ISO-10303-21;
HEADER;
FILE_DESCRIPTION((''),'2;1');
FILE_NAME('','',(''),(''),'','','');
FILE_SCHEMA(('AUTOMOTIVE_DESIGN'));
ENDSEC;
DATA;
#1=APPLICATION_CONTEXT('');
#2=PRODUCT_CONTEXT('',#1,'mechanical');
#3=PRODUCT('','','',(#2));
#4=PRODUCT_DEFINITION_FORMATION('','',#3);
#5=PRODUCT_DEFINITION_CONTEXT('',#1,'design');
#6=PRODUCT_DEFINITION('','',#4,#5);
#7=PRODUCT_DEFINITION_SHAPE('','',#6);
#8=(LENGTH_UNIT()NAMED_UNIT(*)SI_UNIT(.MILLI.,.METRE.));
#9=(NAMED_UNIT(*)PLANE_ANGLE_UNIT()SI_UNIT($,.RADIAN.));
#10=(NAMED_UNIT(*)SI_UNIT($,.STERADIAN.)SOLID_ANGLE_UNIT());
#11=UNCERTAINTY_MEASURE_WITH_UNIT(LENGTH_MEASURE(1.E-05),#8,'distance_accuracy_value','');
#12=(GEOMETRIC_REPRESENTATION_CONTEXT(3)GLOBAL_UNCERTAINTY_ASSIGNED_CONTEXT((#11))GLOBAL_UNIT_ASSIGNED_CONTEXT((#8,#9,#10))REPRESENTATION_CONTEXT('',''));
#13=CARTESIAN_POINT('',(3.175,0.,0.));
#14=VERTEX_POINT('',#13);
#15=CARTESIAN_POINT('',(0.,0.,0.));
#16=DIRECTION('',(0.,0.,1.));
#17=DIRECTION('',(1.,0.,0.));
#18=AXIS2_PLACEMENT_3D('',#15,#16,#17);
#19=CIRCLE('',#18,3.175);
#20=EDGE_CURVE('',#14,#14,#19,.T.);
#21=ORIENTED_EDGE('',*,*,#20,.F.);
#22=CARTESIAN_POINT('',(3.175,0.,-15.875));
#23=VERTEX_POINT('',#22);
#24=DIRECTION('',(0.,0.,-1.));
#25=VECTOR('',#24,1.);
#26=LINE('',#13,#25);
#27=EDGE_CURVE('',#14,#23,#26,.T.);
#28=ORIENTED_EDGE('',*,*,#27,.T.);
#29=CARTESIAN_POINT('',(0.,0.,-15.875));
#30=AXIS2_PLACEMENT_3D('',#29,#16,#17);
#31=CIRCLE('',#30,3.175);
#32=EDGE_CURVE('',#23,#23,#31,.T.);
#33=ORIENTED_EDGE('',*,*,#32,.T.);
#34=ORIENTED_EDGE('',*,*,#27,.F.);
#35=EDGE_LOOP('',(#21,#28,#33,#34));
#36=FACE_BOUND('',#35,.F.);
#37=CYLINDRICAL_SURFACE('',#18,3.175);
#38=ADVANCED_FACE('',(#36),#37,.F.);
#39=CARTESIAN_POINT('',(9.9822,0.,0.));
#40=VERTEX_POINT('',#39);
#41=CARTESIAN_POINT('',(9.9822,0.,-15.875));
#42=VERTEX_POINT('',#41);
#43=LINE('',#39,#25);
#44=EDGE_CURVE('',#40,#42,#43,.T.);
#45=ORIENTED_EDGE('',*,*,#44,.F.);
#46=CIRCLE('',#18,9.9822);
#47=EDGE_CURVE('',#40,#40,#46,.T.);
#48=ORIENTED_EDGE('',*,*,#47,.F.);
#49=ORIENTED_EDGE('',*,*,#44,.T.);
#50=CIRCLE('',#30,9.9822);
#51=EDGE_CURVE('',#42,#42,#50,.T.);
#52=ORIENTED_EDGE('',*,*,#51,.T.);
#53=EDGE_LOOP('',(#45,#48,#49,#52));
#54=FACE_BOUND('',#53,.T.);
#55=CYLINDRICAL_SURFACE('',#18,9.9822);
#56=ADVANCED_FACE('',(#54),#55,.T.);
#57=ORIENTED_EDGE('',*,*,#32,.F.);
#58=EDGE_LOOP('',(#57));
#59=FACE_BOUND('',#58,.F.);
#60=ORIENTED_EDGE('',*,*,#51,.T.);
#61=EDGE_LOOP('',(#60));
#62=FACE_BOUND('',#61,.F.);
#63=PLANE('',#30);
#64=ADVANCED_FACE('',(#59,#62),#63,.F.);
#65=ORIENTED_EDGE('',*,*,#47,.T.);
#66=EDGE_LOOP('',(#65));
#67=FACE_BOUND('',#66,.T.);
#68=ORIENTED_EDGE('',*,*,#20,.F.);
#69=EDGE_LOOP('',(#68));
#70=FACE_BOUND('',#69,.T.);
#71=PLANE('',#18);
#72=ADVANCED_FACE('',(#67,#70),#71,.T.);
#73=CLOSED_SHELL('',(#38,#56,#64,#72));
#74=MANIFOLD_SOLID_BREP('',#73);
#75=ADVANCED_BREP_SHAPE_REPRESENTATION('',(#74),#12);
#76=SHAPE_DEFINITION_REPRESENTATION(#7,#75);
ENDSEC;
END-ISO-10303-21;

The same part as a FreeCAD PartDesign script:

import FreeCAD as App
import Part
import Sketcher
from FreeCAD import Vector
Q = App.Units.Quantity

doc = App.newDocument("Part")
params = doc.addObject("Spreadsheet::Sheet", "Params")
for row, (alias, value) in enumerate([
    ("sketch1_diameter", "0.786 in"),
    ("pad1_length", "0.625 in"),
    ("sketch2_diameter", "0.25 in"),
], start=1):
    params.set(f"A{row}", alias)
    params.set(f"B{row}", "=" + value)
    params.setAlias(f"B{row}", alias)

body = doc.addObject("PartDesign::Body", "Body")

sketch1 = body.newObject("Sketcher::SketchObject", "Sketch")
sketch1.AttachmentSupport = (doc.getObject("XY_Plane"), [""])
sketch1.MapMode = "FlatFace"
sketch1.addGeometry(Part.Circle(Vector(0, 0, 0), Vector(0, 0, 1), 9.9822), False)
sketch1.addConstraint([
    Sketcher.Constraint("Coincident", 0, 3, -1, 1),
    Sketcher.Constraint("Diameter", 0, Q("0.786 in")),
])
sketch1.setExpression("Constraints[1]", "Params.sketch1_diameter")
pad1 = body.newObject("PartDesign::Pad", "Pad")
pad1.Profile = sketch1
pad1.setExpression("Length", "Params.pad1_length")
pad1.Reversed = True

sketch2 = body.newObject("Sketcher::SketchObject", "Sketch001")
sketch2.AttachmentSupport = (doc.getObject("XY_Plane"), [""])
sketch2.MapMode = "FlatFace"
sketch2.addGeometry(Part.Circle(Vector(0, 0, 0), Vector(0, 0, 1), 3.175), False)
sketch2.addConstraint([
    Sketcher.Constraint("Coincident", 0, 3, -1, 1),
    Sketcher.Constraint("Diameter", 0, Q("0.25 in")),
])
sketch2.setExpression("Constraints[1]", "Params.sketch2_diameter")
pocket1 = body.newObject("PartDesign::Pocket", "Pocket")
pocket1.Profile = sketch2
pocket1.Type = "ThroughAll"

doc.recompute()
